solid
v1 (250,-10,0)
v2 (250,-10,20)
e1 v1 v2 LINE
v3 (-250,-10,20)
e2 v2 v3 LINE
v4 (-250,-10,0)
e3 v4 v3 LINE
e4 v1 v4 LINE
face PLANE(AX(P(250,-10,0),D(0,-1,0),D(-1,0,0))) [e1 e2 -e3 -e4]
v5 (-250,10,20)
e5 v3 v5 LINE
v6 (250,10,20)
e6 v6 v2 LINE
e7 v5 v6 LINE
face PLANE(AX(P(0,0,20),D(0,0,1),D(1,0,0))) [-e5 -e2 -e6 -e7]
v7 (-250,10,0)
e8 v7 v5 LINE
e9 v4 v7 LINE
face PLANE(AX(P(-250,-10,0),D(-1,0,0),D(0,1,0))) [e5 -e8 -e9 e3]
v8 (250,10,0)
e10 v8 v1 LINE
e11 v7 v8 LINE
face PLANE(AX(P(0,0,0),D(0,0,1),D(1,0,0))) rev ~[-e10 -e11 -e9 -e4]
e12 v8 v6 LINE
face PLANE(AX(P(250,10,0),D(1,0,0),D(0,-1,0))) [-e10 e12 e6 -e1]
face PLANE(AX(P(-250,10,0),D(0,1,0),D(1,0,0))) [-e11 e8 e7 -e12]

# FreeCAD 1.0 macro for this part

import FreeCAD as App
import Part
import Sketcher

V = App.Vector
Q = App.Units.Quantity

doc = App.newDocument("Part")
body = doc.addObject("PartDesign::Body", "Body")

# Sketch on XY plane
sketch1 = body.newObject("Sketcher::SketchObject", "Sketch")
sketch1.AttachmentSupport = (doc.getObject("XY_Plane"), [""])
sketch1.MapMode = "FlatFace"
sketch1.addGeometry([
    Part.LineSegment(V(250, 10, 0), V(-250, 10, 0)),
    Part.LineSegment(V(-250, 10, 0), V(-250, -10, 0)),
    Part.LineSegment(V(-250, -10, 0), V(250, -10, 0)),
    Part.LineSegment(V(250, -10, 0), V(250, 10, 0)),
], False)
sketch1.addConstraint([
    Sketcher.Constraint("Coincident", 0, 2, 1, 1),
    Sketcher.Constraint("Coincident", 1, 2, 2, 1),
    Sketcher.Constraint("Coincident", 2, 2, 3, 1),
    Sketcher.Constraint("Coincident", 3, 2, 0, 1),
    Sketcher.Constraint("Horizontal", 0),
    Sketcher.Constraint("Vertical", 1),
    Sketcher.Constraint("Horizontal", 2),
    Sketcher.Constraint("Vertical", 3),
    Sketcher.Constraint("Symmetric", 0, 2, 2, 2, -1, 1),
    Sketcher.Constraint("DistanceX", 0, 2, 0, 1, Q("500 mm")),
    Sketcher.Constraint("DistanceY", 1, 2, 1, 1, Q("20 mm")),
])
pad1 = body.newObject("PartDesign::Pad", "Pad")
pad1.Profile = sketch1
pad1.Length = 20

doc.recompute()
